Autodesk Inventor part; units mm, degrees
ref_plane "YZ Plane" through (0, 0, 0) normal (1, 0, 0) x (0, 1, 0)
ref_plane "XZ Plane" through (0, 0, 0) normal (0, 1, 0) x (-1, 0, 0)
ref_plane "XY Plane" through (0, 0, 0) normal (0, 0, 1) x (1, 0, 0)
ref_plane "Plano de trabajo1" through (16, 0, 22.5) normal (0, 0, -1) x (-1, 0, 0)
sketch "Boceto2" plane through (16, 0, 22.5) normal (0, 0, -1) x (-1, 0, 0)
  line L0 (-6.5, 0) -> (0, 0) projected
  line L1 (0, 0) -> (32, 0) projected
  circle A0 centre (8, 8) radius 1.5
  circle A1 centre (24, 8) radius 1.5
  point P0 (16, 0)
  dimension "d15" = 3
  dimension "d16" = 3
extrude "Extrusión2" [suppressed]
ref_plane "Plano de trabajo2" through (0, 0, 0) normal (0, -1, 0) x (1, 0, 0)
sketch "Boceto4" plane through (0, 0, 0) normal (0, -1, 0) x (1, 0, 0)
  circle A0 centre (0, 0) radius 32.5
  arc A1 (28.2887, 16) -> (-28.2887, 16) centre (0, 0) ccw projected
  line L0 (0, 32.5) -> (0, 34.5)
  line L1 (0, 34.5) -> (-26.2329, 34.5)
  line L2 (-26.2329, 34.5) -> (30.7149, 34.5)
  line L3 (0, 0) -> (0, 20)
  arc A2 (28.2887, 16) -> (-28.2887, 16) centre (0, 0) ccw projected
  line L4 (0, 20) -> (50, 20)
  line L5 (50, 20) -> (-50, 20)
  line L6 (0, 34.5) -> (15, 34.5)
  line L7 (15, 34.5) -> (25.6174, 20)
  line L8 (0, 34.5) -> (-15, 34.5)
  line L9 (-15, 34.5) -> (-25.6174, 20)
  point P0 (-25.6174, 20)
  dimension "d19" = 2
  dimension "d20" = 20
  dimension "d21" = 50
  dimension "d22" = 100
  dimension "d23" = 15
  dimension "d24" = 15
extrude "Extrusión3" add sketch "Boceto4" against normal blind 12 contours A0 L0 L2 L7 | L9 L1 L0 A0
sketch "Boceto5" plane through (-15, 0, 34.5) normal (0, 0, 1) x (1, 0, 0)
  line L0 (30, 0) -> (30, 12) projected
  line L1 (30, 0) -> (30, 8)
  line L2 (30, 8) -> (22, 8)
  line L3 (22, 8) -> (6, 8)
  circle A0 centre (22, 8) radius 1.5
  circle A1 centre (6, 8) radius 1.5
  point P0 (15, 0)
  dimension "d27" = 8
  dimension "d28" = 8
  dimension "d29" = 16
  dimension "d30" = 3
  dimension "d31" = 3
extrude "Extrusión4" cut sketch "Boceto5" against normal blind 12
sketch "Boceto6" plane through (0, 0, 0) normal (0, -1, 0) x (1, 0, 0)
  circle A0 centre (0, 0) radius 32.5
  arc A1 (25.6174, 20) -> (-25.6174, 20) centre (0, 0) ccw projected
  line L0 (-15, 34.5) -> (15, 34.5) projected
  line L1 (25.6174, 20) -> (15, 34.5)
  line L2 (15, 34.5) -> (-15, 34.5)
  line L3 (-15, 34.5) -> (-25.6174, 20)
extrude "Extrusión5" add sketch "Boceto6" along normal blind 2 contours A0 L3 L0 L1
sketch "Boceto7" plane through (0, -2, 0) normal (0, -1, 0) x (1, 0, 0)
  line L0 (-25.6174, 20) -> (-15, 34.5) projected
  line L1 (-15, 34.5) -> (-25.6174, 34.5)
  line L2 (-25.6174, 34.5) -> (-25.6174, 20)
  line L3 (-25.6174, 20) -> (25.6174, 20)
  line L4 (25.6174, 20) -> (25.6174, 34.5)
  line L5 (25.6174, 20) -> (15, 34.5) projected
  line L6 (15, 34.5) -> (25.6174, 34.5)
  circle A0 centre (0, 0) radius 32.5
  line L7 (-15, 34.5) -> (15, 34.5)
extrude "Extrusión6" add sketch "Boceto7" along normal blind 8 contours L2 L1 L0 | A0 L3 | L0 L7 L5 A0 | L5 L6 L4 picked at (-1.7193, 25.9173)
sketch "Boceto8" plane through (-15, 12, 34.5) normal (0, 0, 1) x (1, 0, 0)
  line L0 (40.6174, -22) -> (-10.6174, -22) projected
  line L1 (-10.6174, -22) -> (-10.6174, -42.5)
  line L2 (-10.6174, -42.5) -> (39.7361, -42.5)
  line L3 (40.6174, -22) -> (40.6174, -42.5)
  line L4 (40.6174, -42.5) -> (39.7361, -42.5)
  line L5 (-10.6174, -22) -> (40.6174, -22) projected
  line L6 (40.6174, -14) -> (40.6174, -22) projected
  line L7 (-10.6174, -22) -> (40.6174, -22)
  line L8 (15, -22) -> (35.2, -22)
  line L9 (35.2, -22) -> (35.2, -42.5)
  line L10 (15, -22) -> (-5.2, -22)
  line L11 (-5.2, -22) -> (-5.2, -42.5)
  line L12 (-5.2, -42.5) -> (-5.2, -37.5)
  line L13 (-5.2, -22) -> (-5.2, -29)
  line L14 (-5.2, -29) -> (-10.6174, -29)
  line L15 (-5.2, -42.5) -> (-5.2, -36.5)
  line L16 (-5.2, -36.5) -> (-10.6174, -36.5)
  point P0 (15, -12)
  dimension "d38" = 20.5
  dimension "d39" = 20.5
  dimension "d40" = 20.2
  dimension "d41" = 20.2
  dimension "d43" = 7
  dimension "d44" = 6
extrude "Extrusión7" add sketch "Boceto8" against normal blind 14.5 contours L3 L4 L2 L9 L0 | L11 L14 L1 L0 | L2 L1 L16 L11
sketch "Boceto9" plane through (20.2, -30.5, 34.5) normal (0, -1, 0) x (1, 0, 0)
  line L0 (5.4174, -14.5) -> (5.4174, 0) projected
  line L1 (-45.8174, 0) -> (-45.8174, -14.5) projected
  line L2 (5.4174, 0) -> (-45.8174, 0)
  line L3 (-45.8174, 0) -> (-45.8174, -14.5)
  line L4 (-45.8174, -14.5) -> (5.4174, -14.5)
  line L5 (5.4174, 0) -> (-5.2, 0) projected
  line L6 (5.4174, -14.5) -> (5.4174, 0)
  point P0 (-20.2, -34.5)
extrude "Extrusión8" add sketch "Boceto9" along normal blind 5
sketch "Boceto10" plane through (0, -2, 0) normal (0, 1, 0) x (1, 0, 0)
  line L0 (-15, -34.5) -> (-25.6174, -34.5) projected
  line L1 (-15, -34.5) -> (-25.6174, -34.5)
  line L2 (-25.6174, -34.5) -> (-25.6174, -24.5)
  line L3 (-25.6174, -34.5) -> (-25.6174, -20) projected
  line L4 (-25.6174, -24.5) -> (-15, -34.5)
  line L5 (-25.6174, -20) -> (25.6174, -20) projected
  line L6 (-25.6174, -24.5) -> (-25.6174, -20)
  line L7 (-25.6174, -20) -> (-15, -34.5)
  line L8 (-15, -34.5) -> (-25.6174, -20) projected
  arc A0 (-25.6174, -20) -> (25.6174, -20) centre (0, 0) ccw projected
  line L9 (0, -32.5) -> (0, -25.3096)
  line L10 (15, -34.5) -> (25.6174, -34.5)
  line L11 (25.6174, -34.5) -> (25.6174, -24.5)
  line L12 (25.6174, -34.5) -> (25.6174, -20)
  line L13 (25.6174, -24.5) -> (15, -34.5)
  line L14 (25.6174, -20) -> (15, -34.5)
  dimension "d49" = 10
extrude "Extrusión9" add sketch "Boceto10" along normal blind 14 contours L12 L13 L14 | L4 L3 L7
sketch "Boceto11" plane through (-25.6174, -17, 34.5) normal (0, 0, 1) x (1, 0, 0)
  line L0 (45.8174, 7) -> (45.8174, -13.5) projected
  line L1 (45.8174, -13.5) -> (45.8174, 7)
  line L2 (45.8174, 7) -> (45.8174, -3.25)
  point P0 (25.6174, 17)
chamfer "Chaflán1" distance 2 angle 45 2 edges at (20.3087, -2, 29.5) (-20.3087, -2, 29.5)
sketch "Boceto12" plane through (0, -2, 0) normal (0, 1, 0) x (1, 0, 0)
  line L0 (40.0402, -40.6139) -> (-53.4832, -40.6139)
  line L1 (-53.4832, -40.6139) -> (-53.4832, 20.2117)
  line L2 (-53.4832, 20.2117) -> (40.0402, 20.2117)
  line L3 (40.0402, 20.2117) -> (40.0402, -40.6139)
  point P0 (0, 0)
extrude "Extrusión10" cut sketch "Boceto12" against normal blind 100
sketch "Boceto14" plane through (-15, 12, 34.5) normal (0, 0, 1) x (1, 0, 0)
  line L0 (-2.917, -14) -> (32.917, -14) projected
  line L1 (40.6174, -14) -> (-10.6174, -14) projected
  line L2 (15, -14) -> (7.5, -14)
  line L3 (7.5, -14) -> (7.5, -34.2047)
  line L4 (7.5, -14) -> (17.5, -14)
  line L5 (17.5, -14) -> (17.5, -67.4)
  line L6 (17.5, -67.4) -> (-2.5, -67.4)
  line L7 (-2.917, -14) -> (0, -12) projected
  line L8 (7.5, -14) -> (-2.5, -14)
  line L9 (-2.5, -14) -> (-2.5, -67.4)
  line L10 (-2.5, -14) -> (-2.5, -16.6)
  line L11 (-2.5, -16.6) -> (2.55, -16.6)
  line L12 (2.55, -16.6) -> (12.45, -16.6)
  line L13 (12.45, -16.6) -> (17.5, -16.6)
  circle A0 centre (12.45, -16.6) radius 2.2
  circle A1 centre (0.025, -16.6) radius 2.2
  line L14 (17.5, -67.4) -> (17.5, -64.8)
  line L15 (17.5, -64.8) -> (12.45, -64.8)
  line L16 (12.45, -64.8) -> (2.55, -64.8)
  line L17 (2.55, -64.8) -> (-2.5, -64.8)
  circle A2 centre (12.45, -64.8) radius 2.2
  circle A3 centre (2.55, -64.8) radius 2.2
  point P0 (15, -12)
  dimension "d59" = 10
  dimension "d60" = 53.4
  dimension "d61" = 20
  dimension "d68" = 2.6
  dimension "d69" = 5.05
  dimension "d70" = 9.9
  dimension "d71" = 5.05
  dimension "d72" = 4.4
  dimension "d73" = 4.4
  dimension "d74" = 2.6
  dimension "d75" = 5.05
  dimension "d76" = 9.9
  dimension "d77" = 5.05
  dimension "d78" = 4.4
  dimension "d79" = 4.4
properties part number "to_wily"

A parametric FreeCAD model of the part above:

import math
import FreeCAD as App
import Part
import Sketcher
from FreeCAD import Vector
Q = App.Units.Quantity


def edges_at(feature, points):
    """Names of the edges that pass closest to the given points."""
    edges = feature.Shape.Edges
    near = lambda p: min(range(len(edges)), key=lambda i: edges[i].distToShape(Part.Vertex(*p))[0])
    return sorted({f"Edge{near(p) + 1}" for p in points})

doc = App.newDocument("Part")
body = doc.addObject("PartDesign::Body", "Body")
body.AllowCompound = True

# Sketch on XZ plane
sketch1 = doc.addObject("Sketcher::SketchObject", "Sketch")
body.addObject(sketch1)
sketch1.AttachmentSupport = (doc.XZ_Plane, [""])
sketch1.MapMode = "FlatFace"
sketch1.addGeometry([
    Part.LineSegment(Vector(26, 20, 0), Vector(15, 34, 0)),
    Part.LineSegment(Vector(15, 34, 0), Vector(-15, 34, 0)),
    Part.LineSegment(Vector(-15, 34, 0), Vector(-26, 20, 0)),
    Part.ArcOfCircle(Part.Circle(Vector(0, 0, 0), Vector(0, 0, 1), 32), math.radians(38), math.radians(142)),
], False)
sketch1.addConstraint([
    Sketcher.Constraint("Coincident", 0, 2, 1, 1),
    Sketcher.Constraint("Coincident", 1, 2, 2, 1),
    Sketcher.Constraint("Coincident", 2, 2, 3, 2),
    Sketcher.Constraint("Coincident", 3, 1, 0, 1),
    Sketcher.Constraint("Horizontal", 1),
    Sketcher.Constraint("Coincident", 3, 3, -1, 1),
    Sketcher.Constraint("Horizontal", 2, 2, 3, 1),
    Sketcher.Constraint("Equal", 0, 2),
    Sketcher.Constraint("DistanceX", -1, 1, 0, 2, Q("15 mm")),
    Sketcher.Constraint("DistanceY", -1, 1, 2, 2, Q("20 mm")),
    Sketcher.Constraint("Radius", 3, Q("32.5 mm")),
    Sketcher.Constraint("DistanceY", -1, 1, 0, 2, Q("34.5 mm")),
])
pad1 = doc.addObject("PartDesign::Pad", "Pad")
body.addObject(pad1)
pad1.Profile = sketch1
pad1.Length = 12
pad1.Reversed = True

# Sketch on XY plane
sketch2 = doc.addObject("Sketcher::SketchObject", "Sketch001")
body.addObject(sketch2)
sketch2.AttachmentSupport = (doc.XY_Plane, [""])
sketch2.MapMode = "FlatFace"
sketch2.AttachmentOffset = App.Placement(Vector(0, 0, 34.5), App.Rotation())
sketch2.addGeometry([
    Part.Circle(Vector(7, 8, 0), Vector(0, 0, 1), 1.5),
    Part.Circle(Vector(-9, 8, 0), Vector(0, 0, 1), 1.5),
], False)
sketch2.addConstraint([
    Sketcher.Constraint("Equal", 0, 1),
    Sketcher.Constraint("Horizontal", 0, 3, 1, 3),
    Sketcher.Constraint("Diameter", 0, Q("3 mm")),
    Sketcher.Constraint("DistanceY", -1, 1, 0, 3, Q("8 mm")),
    Sketcher.Constraint("DistanceX", 1, 3, 0, 3, Q("16 mm")),
    Sketcher.Constraint("DistanceX", -1, 1, 0, 3, Q("7 mm")),
])
pocket1 = doc.addObject("PartDesign::Pocket", "Pocket")
body.addObject(pocket1)
pocket1.Profile = sketch2
pocket1.Length = 12

# Sketch on XZ plane
sketch3 = doc.addObject("Sketcher::SketchObject", "Sketch002")
body.addObject(sketch3)
sketch3.AttachmentSupport = (doc.XZ_Plane, [""])
sketch3.MapMode = "FlatFace"
sketch3.addGeometry([
    Part.ArcOfCircle(Part.Circle(Vector(0, 0, 0), Vector(0, 0, 1), 32), math.radians(38), math.radians(142)),
    Part.LineSegment(Vector(26, 20, 0), Vector(15, 34, 0)),
    Part.LineSegment(Vector(15, 34, 0), Vector(-15, 34, 0)),
    Part.LineSegment(Vector(-15, 34, 0), Vector(-26, 20, 0)),
], False)
sketch3.addConstraint([
    Sketcher.Constraint("Coincident", 0, 1, 1, 1),
    Sketcher.Constraint("Coincident", 1, 2, 2, 1),
    Sketcher.Constraint("Coincident", 2, 2, 3, 1),
    Sketcher.Constraint("Coincident", 3, 2, 0, 2),
    Sketcher.Constraint("Horizontal", 2),
    Sketcher.Constraint("Coincident", 0, 3, -1, 1),
    Sketcher.Constraint("Horizontal", 0, 1, 3, 2),
    Sketcher.Constraint("Equal", 1, 3),
    Sketcher.Constraint("Radius", 0, Q("32.5 mm")),
    Sketcher.Constraint("DistanceX", 2, 2, 2, 1, Q("30 mm")),
    Sketcher.Constraint("DistanceY", -1, 1, 0, 1, Q("20 mm")),
    Sketcher.Constraint("DistanceY", -1, 1, 1, 2, Q("34.5 mm")),
])
pad2 = doc.addObject("PartDesign::Pad", "Pad001")
body.addObject(pad2)
pad2.Profile = sketch3
pad2.Length = 2

# Sketch on XZ plane
sketch4 = doc.addObject("Sketcher::SketchObject", "Sketch003")
body.addObject(sketch4)
sketch4.AttachmentSupport = (doc.XZ_Plane, [""])
sketch4.MapMode = "FlatFace"
sketch4.AttachmentOffset = App.Placement(Vector(0, 0, 2), App.Rotation())
sketch4.addGeometry([
    Part.LineSegment(Vector(-26, 34, 0), Vector(-26, 20, 0)),
    Part.LineSegment(Vector(-26, 20, 0), Vector(26, 20, 0)),
    Part.LineSegment(Vector(26, 20, 0), Vector(26, 34, 0)),
    Part.LineSegment(Vector(26, 34, 0), Vector(-26, 34, 0)),
], False)
sketch4.addConstraint([
    Sketcher.Constraint("Coincident", 0, 2, 1, 1),
    Sketcher.Constraint("Coincident", 1, 2, 2, 1),
    Sketcher.Constraint("Coincident", 2, 2, 3, 1),
    Sketcher.Constraint("Coincident", 3, 2, 0, 1),
    Sketcher.Constraint("Vertical", 0),
    Sketcher.Constraint("Horizontal", 1),
    Sketcher.Constraint("Vertical", 2),
    Sketcher.Constraint("Horizontal", 3),
    Sketcher.Constraint("DistanceY", 0, 2, 0, 1, Q("14.5 mm")),
    Sketcher.Constraint("DistanceY", -1, 1, 0, 2, Q("20 mm")),
    Sketcher.Constraint("DistanceX", 1, 1, 1, 2, Q("51.2348 mm")),
    Sketcher.Constraint("DistanceX", 0, 2, -1, 1, Q("25.6174 mm")),
])
pad3 = doc.addObject("PartDesign::Pad", "Pad002")
body.addObject(pad3)
pad3.Profile = sketch4
pad3.Length = 8

# Sketch on XY plane
sketch5 = doc.addObject("Sketcher::SketchObject", "Sketch004")
body.addObject(sketch5)
sketch5.AttachmentSupport = (doc.XY_Plane, [""])
sketch5.MapMode = "FlatFace"
sketch5.AttachmentOffset = App.Placement(Vector(0, 0, 34.5), App.Rotation())
sketch5.addGeometry([
    Part.LineSegment(Vector(26, -30, 0), Vector(26, -10, 0)),  # 0
    Part.LineSegment(Vector(26, -10, 0), Vector(20, -10, 0)),  # 1
    Part.LineSegment(Vector(20, -10, 0), Vector(20, -30, 0)),  # 2
    Part.LineSegment(Vector(20, -30, 0), Vector(26, -30, 0)),  # 3
    Part.LineSegment(Vector(-20, -17, 0), Vector(-20, -10, 0)),  # 4
    Part.LineSegment(Vector(-20, -10, 0), Vector(-26, -10, 0)),  # 5
    Part.LineSegment(Vector(-26, -10, 0), Vector(-26, -17, 0)),  # 6
    Part.LineSegment(Vector(-26, -17, 0), Vector(-20, -17, 0)),  # 7
    Part.LineSegment(Vector(-26, -30, 0), Vector(-20, -30, 0)),  # 8
    Part.LineSegment(Vector(-20, -30, 0), Vector(-20, -24, 0)),  # 9
    Part.LineSegment(Vector(-20, -24, 0), Vector(-26, -24, 0)),  # 10
    Part.LineSegment(Vector(-26, -24, 0), Vector(-26, -30, 0)),  # 11
], False)
sketch5.addConstraint([
    Sketcher.Constraint("Coincident", 0, 2, 1, 1),
    Sketcher.Constraint("Coincident", 1, 2, 2, 1),
    Sketcher.Constraint("Coincident", 2, 2, 3, 1),
    Sketcher.Constraint("Coincident", 3, 2, 0, 1),
    Sketcher.Constraint("Coincident", 4, 2, 5, 1),
    Sketcher.Constraint("Coincident", 5, 2, 6, 1),
    Sketcher.Constraint("Coincident", 6, 2, 7, 1),
    Sketcher.Constraint("Coincident", 7, 2, 4, 1),
    Sketcher.Constraint("Coincident", 8, 2, 9, 1),
    Sketcher.Constraint("Coincident", 9, 2, 10, 1),
    Sketcher.Constraint("Coincident", 10, 2, 11, 1),
    Sketcher.Constraint("Coincident", 11, 2, 8, 1),
    Sketcher.Constraint("Vertical", 0),
    Sketcher.Constraint("Horizontal", 1),
    Sketcher.Constraint("Vertical", 2),
    Sketcher.Constraint("Horizontal", 3),
    Sketcher.Constraint("Vertical", 4),
    Sketcher.Constraint("Horizontal", 5),
    Sketcher.Constraint("Vertical", 6),
    Sketcher.Constraint("Horizontal", 7),
    Sketcher.Constraint("Horizontal", 8),
    Sketcher.Constraint("Vertical", 9),
    Sketcher.Constraint("Horizontal", 10),
    Sketcher.Constraint("Vertical", 11),
    Sketcher.Constraint("Symmetric", 1, 2, 4, 2, -2),
    Sketcher.Constraint("Symmetric", 2, 2, 8, 2, -2),
    Sketcher.Constraint("Vertical", 6, 2, 10, 2),
    Sketcher.Constraint("Equal", 3, 5),
    Sketcher.Constraint("DistanceY", 4, 1, 4, 2, Q("7 mm")),
    Sketcher.Constraint("DistanceY", 9, 1, 9, 2, Q("6 mm")),
    Sketcher.Constraint("DistanceY", 0, 1, 0, 2, Q("20.5 mm")),
    Sketcher.Constraint("DistanceX", -1, 1, 1, 2, Q("20.2 mm")),
    Sketcher.Constraint("DistanceY", 0, 2, -1, 1, Q("10 mm")),
    Sketcher.Constraint("DistanceX", 1, 2, 1, 1, Q("5.4174 mm")),
])
pad4 = doc.addObject("PartDesign::Pad", "Pad003")
body.addObject(pad4)
pad4.Profile = sketch5
pad4.Length = 14.5
pad4.Reversed = True

# Sketch on XZ plane
sketch6 = doc.addObject("Sketcher::SketchObject", "Sketch005")
body.addObject(sketch6)
sketch6.AttachmentSupport = (doc.XZ_Plane, [""])
sketch6.MapMode = "FlatFace"
sketch6.AttachmentOffset = App.Placement(Vector(0, 0, 30.5), App.Rotation())
sketch6.addGeometry([
    Part.LineSegment(Vector(-26, 20, 0), Vector(26, 20, 0)),
    Part.LineSegment(Vector(26, 20, 0), Vector(26, 34, 0)),
    Part.LineSegment(Vector(26, 34, 0), Vector(-26, 34, 0)),
    Part.LineSegment(Vector(-26, 34, 0), Vector(-26, 20, 0)),
], False)
sketch6.addConstraint([
    Sketcher.Constraint("Coincident", 0, 2, 1, 1),
    Sketcher.Constraint("Coincident", 1, 2, 2, 1),
    Sketcher.Constraint("Coincident", 2, 2, 3, 1),
    Sketcher.Constraint("Coincident", 3, 2, 0, 1),
    Sketcher.Constraint("Horizontal", 0),
    Sketcher.Constraint("Vertical", 1),
    Sketcher.Constraint("Horizontal", 2),
    Sketcher.Constraint("Vertical", 3),
    Sketcher.Constraint("DistanceY", 1, 1, 1, 2, Q("14.5 mm")),
    Sketcher.Constraint("DistanceY", -1, 1, 0, 2, Q("20 mm")),
    Sketcher.Constraint("DistanceX", 0, 1, 0, 2, Q("51.2348 mm")),
    Sketcher.Constraint("DistanceX", -1, 1, 0, 2, Q("25.6174 mm")),
])
pad5 = doc.addObject("PartDesign::Pad", "Pad004")
body.addObject(pad5)
pad5.Profile = sketch6
pad5.Length = 5

# Sketch on XZ plane
sketch7 = doc.addObject("Sketcher::SketchObject", "Sketch006")
body.addObject(sketch7)
sketch7.AttachmentSupport = (doc.XZ_Plane, [""])
sketch7.MapMode = "FlatFace"
sketch7.AttachmentOffset = App.Placement(Vector(0, 0, 2), App.Rotation())
sketch7.addGeometry([
    Part.LineSegment(Vector(25.6, 24.5, 0), Vector(25.6, 20, 0)),  # 0
    Part.LineSegment(Vector(25.6, 20, 0), Vector(15, 34.5, 0)),  # 1
    Part.LineSegment(Vector(15, 34.5, 0), Vector(25.6, 24.5, 0)),  # 2
    Part.LineSegment(Vector(-25.6, 24.5, 0), Vector(-15, 34.5, 0)),  # 3
    Part.LineSegment(Vector(-15, 34.5, 0), Vector(-25.6, 20, 0)),  # 4
    Part.LineSegment(Vector(-25.6, 20, 0), Vector(-25.6, 24.5, 0)),  # 5
], False)
sketch7.addConstraint([
    Sketcher.Constraint("Coincident", 0, 2, 1, 1),
    Sketcher.Constraint("Coincident", 1, 2, 2, 1),
    Sketcher.Constraint("Coincident", 2, 2, 0, 1),
    Sketcher.Constraint("Coincident", 3, 2, 4, 1),
    Sketcher.Constraint("Coincident", 4, 2, 5, 1),
    Sketcher.Constraint("Coincident", 5, 2, 3, 1),
    Sketcher.Constraint("Vertical", 0),
    Sketcher.Constraint("Vertical", 5),
    Sketcher.Constraint("Symmetric", 1, 2, 3, 2, -2),
    Sketcher.Constraint("Symmetric", 0, 2, 4, 2, -2),
    Sketcher.Constraint("Horizontal", 2, 2, 5, 2),
    Sketcher.Constraint("DistanceY", 2, 2, 1, 2, Q("10 mm")),
    Sketcher.Constraint("DistanceY", 0, 2, 0, 1, Q("4.5 mm")),
    Sketcher.Constraint("DistanceY", -1, 1, 0, 2, Q("20 mm")),
    Sketcher.Constraint("DistanceX", -1, 1, 1, 2, Q("15 mm")),
    Sketcher.Constraint("Distance", 1, Q("17.9716 mm")),
])
pad6 = doc.addObject("PartDesign::Pad", "Pad005")
body.addObject(pad6)
pad6.Profile = sketch7
pad6.Length = 14
pad6.Reversed = True
doc.recompute()

chamfer = doc.addObject("PartDesign::Chamfer", "Chamfer")
body.addObject(chamfer)
chamfer.Base = (pad6, edges_at(pad6, [(20.309, -2, 29.5), (-20.309, -2, 29.5)]))
chamfer.Size = 2

# Sketch on XZ plane
sketch8 = doc.addObject("Sketcher::SketchObject", "Sketch007")
body.addObject(sketch8)
sketch8.AttachmentSupport = (doc.XZ_Plane, [""])
sketch8.MapMode = "FlatFace"
sketch8.AttachmentOffset = App.Placement(Vector(0, 0, 2), App.Rotation())
sketch8.addGeometry([
    Part.LineSegment(Vector(-53, 41, 0), Vector(40, 41, 0)),
    Part.LineSegment(Vector(40, 41, 0), Vector(40, -20, 0)),
    Part.LineSegment(Vector(40, -20, 0), Vector(-53, -20, 0)),
    Part.LineSegment(Vector(-53, -20, 0), Vector(-53, 41, 0)),
], False)
sketch8.addConstraint([
    Sketcher.Constraint("Coincident", 0, 2, 1, 1),
    Sketcher.Constraint("Coincident", 1, 2, 2, 1),
    Sketcher.Constraint("Coincident", 2, 2, 3, 1),
    Sketcher.Constraint("Coincident", 3, 2, 0, 1),
    Sketcher.Constraint("Horizontal", 0),
    Sketcher.Constraint("Vertical", 1),
    Sketcher.Constraint("Horizontal", 2),
    Sketcher.Constraint("Vertical", 3),
    Sketcher.Constraint("DistanceX", 0, 1, 0, 2, Q("93.5234 mm")),
    Sketcher.Constraint("DistanceY", 1, 2, 1, 1, Q("60.8256 mm")),
    Sketcher.Constraint("DistanceY", -1, 1, 0, 2, Q("40.614 mm")),
    Sketcher.Constraint("DistanceX", -1, 1, 0, 2, Q("40.0402 mm")),
])
pocket2 = doc.addObject("PartDesign::Pocket", "Pocket001")
body.addObject(pocket2)
pocket2.Profile = sketch8
pocket2.Length = 100
pocket2.Reversed = True

doc.recompute()
